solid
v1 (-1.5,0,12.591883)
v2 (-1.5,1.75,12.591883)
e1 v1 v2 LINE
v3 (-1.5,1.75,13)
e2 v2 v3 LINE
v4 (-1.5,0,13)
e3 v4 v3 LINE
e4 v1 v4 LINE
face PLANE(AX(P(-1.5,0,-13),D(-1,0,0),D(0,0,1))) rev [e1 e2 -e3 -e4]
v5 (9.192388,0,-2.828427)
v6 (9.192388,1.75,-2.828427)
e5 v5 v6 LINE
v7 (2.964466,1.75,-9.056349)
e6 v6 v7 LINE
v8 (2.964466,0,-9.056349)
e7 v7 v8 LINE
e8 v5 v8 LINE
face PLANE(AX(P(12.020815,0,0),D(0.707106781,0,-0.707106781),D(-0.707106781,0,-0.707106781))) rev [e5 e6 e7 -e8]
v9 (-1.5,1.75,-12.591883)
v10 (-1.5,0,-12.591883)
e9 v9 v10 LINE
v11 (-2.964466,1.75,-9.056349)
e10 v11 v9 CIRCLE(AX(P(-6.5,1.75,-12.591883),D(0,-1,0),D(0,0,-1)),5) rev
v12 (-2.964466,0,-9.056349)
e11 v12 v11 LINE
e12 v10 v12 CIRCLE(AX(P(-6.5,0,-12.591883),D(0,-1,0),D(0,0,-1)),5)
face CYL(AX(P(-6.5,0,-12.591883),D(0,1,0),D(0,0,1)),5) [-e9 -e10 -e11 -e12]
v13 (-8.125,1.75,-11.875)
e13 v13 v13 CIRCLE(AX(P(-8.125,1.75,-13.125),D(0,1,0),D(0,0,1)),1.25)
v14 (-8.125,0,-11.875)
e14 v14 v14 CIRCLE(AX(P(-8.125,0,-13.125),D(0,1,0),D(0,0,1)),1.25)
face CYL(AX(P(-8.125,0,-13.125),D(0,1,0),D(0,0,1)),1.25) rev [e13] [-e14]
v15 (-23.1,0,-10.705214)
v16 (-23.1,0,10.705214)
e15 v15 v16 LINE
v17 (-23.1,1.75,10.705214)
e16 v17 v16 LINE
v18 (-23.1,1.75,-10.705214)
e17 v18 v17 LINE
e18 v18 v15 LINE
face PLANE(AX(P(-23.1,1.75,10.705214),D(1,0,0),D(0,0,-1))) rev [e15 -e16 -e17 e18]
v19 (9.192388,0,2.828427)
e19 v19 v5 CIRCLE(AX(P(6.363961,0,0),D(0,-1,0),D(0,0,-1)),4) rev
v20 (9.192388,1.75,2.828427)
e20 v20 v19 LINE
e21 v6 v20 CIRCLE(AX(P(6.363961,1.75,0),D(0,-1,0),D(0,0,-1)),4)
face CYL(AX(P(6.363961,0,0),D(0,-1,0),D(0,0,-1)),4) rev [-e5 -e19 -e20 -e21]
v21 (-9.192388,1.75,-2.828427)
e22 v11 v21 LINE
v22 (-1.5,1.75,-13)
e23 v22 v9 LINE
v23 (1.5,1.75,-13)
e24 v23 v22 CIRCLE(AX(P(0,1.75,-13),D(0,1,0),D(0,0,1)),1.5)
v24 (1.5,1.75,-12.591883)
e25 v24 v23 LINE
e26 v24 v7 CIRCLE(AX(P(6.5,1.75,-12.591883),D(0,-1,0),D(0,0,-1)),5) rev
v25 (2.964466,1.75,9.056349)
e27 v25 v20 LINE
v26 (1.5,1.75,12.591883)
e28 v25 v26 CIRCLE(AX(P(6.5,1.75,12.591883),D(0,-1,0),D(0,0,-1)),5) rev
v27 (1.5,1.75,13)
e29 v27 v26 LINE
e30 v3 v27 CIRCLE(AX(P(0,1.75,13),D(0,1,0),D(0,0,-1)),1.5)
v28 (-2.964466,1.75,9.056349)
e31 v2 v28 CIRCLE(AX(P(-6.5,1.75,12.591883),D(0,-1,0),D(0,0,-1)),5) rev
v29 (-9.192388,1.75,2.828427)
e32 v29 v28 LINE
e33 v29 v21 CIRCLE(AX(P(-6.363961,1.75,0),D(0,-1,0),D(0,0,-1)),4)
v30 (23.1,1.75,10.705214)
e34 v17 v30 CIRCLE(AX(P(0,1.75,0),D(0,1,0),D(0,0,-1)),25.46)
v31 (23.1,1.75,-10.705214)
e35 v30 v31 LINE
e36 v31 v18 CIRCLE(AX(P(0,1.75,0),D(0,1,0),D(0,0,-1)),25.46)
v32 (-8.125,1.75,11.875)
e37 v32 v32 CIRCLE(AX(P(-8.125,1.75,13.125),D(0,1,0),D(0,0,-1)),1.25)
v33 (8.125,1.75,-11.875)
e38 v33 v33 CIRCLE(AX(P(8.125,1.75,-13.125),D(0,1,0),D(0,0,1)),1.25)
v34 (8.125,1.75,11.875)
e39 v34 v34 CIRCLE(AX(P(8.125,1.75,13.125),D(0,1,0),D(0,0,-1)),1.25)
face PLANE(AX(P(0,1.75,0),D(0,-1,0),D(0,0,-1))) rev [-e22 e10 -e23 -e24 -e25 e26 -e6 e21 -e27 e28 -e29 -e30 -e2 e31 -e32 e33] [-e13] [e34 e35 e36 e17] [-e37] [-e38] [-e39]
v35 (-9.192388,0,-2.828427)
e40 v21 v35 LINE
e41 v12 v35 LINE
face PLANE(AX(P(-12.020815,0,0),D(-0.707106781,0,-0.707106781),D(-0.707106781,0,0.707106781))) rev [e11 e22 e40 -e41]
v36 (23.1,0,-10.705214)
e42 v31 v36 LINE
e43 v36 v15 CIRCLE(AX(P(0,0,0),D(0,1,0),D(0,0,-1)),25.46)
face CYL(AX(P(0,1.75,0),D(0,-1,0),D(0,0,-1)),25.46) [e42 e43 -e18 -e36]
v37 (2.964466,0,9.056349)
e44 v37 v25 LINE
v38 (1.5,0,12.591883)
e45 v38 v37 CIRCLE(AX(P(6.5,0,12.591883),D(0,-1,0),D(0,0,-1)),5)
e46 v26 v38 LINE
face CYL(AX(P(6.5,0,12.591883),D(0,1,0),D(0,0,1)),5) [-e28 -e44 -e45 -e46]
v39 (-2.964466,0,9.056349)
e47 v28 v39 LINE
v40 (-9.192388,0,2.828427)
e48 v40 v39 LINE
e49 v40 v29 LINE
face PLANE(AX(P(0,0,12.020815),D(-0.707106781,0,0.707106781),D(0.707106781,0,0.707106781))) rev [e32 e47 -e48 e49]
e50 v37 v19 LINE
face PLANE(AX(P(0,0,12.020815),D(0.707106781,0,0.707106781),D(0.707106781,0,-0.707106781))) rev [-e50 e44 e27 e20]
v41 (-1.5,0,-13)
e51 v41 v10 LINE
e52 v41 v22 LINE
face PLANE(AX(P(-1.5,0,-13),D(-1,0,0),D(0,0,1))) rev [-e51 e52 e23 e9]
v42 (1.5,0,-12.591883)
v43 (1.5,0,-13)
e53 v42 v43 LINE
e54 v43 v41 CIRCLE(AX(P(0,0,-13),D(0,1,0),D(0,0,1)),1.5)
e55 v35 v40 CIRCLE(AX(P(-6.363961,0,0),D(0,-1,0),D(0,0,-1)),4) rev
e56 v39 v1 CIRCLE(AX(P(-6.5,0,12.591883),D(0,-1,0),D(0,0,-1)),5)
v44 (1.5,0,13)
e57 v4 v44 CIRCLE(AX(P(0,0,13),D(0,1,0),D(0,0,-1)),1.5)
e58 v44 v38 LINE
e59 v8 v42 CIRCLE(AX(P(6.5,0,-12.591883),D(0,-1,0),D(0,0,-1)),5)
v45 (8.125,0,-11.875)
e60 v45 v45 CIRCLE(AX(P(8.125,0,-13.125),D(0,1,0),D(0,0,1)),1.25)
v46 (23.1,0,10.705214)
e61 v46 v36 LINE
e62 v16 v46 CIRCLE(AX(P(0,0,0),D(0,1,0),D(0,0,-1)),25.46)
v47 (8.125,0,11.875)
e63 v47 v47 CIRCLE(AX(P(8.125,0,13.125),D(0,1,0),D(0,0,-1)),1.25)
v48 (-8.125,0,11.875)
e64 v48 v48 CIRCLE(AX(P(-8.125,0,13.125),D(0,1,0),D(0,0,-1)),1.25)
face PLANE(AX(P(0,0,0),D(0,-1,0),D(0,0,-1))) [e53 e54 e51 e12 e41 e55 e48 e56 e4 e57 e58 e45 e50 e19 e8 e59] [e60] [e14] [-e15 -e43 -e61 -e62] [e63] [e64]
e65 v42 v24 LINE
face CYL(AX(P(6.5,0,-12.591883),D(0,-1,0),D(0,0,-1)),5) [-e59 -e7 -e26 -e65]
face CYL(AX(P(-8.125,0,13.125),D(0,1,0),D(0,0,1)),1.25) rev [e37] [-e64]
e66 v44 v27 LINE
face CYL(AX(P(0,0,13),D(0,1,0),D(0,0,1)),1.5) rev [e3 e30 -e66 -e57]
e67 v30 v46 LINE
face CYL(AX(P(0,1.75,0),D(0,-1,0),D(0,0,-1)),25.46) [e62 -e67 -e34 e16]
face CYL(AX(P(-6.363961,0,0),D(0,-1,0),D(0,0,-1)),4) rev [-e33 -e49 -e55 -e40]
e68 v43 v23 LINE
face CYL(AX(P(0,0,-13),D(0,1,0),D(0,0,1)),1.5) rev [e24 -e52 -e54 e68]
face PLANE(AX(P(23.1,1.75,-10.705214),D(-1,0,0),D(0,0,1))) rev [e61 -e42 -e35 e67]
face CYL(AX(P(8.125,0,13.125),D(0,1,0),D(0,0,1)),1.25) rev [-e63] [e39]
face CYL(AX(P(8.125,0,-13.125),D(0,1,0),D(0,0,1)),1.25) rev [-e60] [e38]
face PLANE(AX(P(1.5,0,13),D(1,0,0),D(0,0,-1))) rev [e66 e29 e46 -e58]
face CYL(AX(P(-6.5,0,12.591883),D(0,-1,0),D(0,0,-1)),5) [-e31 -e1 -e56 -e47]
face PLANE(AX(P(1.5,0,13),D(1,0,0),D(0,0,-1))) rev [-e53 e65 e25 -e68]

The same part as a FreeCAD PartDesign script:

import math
import FreeCAD as App
import Part
import Sketcher

V = App.Vector
Q = App.Units.Quantity


def edges_at(feature, points):
    """Names of the edges that pass closest to the given points."""
    edges = feature.Shape.Edges
    near = lambda p: min(range(len(edges)), key=lambda i: edges[i].distToShape(Part.Vertex(*p))[0])
    return sorted({f"Edge{near(p) + 1}" for p in points})

doc = App.newDocument("Part")
body = doc.addObject("PartDesign::Body", "Body")

# Sketch on XZ plane
sketch1 = body.newObject("Sketcher::SketchObject", "Sketch")
sketch1.AttachmentSupport = (doc.getObject("XZ_Plane"), [""])
sketch1.MapMode = "FlatFace"
sketch1.addGeometry([
    Part.LineSegment(V(-23, -11, 0), V(-23, 11, 0)),
    Part.ArcOfCircle(Part.Circle(V(0, 0, 0), V(0, 0, 1), 25), math.radians(25), math.radians(155)),
    Part.LineSegment(V(23, 11, 0), V(23, -11, 0)),
    Part.ArcOfCircle(Part.Circle(V(0, 0, 0), V(0, 0, 1), 25), math.radians(-155), math.radians(-25)),
], False)
sketch1.addConstraint([
    Sketcher.Constraint("Coincident", 0, 2, 1, 2),
    Sketcher.Constraint("Coincident", 1, 1, 2, 1),
    Sketcher.Constraint("Coincident", 2, 2, 3, 2),
    Sketcher.Constraint("Coincident", 3, 1, 0, 1),
    Sketcher.Constraint("Vertical", 0),
    Sketcher.Constraint("Vertical", 2),
    Sketcher.Constraint("Coincident", 1, 3, -1, 1),
    Sketcher.Constraint("Coincident", 3, 3, -1, 1),
    Sketcher.Constraint("Equal", 1, 3),
    Sketcher.Constraint("Horizontal", 0, 2, 1, 1),
    Sketcher.Constraint("Radius", 1, Q("25.46 mm")),
    Sketcher.Constraint("DistanceX", 0, 2, -1, 1, Q("23.1 mm")),
])
pad1 = body.newObject("PartDesign::Pad", "Pad")
pad1.Profile = sketch1
pad1.Length = 1.75
pad1.Reversed = True

# Sketch on XZ plane
sketch2 = body.newObject("Sketcher::SketchObject", "Sketch001")
sketch2.AttachmentSupport = (doc.getObject("XZ_Plane"), [""])
sketch2.MapMode = "FlatFace"
sketch2.AttachmentOffset = App.Placement(V(0, 0, -1.75), App.Rotation())
sketch2.addGeometry([
    Part.LineSegment(V(-12, 0, 0), V(0, 12, 0)),
    Part.LineSegment(V(0, 12, 0), V(12, 0, 0)),
    Part.LineSegment(V(12, 0, 0), V(0, -12, 0)),
    Part.LineSegment(V(0, -12, 0), V(-12, 0, 0)),
], False)
sketch2.addConstraint([
    Sketcher.Constraint("Coincident", 0, 2, 1, 1),
    Sketcher.Constraint("Coincident", 1, 2, 2, 1),
    Sketcher.Constraint("Coincident", 2, 2, 3, 1),
    Sketcher.Constraint("Coincident", 3, 2, 0, 1),
    Sketcher.Constraint("Symmetric", 0, 2, 2, 2, -1, 1),
    Sketcher.Constraint("Symmetric", 1, 2, 3, 2, -1, 1),
    Sketcher.Constraint("PointOnObject", 0, 2, -2),
    Sketcher.Constraint("PointOnObject", 1, 2, -1),
    Sketcher.Constraint("Perpendicular", 0, 1),
    Sketcher.Constraint("Distance", 0, Q("17 mm")),
])
pocket1 = body.newObject("PartDesign::Pocket", "Pocket")
pocket1.Profile = sketch2
pocket1.Type = "ThroughAll"
pocket1.Reversed = True

# Sketch on XZ plane
sketch3 = body.newObject("Sketcher::SketchObject", "Sketch002")
sketch3.AttachmentSupport = (doc.getObject("XZ_Plane"), [""])
sketch3.MapMode = "FlatFace"
sketch3.AttachmentOffset = App.Placement(V(0, 0, -1.75), App.Rotation())
sketch3.addGeometry([
    Part.LineSegment(V(-1.5, -13, 0), V(-1.5, 13, 0)),
    Part.ArcOfCircle(Part.Circle(V(0, 13, 0), V(0, 0, 1), 1.5), math.radians(0), math.radians(180)),
    Part.LineSegment(V(1.5, 13, 0), V(1.5, -13, 0)),
    Part.ArcOfCircle(Part.Circle(V(0, -13, 0), V(0, 0, 1), 1.5), math.radians(180), math.radians(360)),
], False)
sketch3.addConstraint([
    Sketcher.Constraint("Tangent", 0, 2, 1, 2),
    Sketcher.Constraint("Tangent", 1, 1, 2, 1),
    Sketcher.Constraint("Tangent", 2, 2, 3, 2),
    Sketcher.Constraint("Tangent", 3, 1, 0, 1),
    Sketcher.Constraint("Vertical", 0),
    Sketcher.Constraint("Vertical", 2),
    Sketcher.Constraint("Symmetric", 1, 3, 3, 3, -1, 1),
    Sketcher.Constraint("Radius", 1, Q("1.5 mm")),
    Sketcher.Constraint("DistanceY", 0, 1, 0, 2, Q("26 mm")),
])
pocket2 = body.newObject("PartDesign::Pocket", "Pocket001")
pocket2.Profile = sketch3
pocket2.Length = 1.75
pocket2.Reversed = True
doc.recompute()

fillet = body.newObject("PartDesign::Fillet", "Fillet")
fillet.Base = (pocket2, edges_at(pocket2, [
    (1.5, 0.875, -10.521),
    (-1.5, 0.875, -10.521),
    (-1.5, 0.875, 10.521),
    (1.5, 0.875, 10.521),
]))
fillet.Radius = 5
doc.recompute()

fillet2 = body.newObject("PartDesign::Fillet", "Fillet001")
fillet2.Base = (fillet, edges_at(fillet, [(12.021, 0.875, 0), (-12.021, 0.875, 0)]))
fillet2.Radius = 4

# Sketch on XZ plane
sketch4 = body.newObject("Sketcher::SketchObject", "Sketch003")
sketch4.AttachmentSupport = (doc.getObject("XZ_Plane"), [""])
sketch4.MapMode = "FlatFace"
sketch4.AttachmentOffset = App.Placement(V(0, 0, -1.75), App.Rotation())
sketch4.addGeometry([
    Part.Circle(V(-8.1, -13.1, 0), V(0, 0, 1), 1.2),
    Part.Circle(V(8.1, -13.1, 0), V(0, 0, 1), 1.2),
], False)
sketch4.addConstraint([
    Sketcher.Constraint("Equal", 0, 1),
    Sketcher.Constraint("Symmetric", 0, 3, 1, 3, -2),
    Sketcher.Constraint("Diameter", 0, Q("2.5 mm")),
    Sketcher.Constraint("DistanceX", 0, 3, 1, 3, Q("16.25 mm")),
    Sketcher.Constraint("DistanceY", 0, 3, -1, 1, Q("13.125 mm")),
])
pocket3 = body.newObject("PartDesign::Pocket", "Pocket002")
pocket3.Profile = sketch4
pocket3.Type = "ThroughAll"
pocket3.Reversed = True
doc.recompute()

polarpattern = body.newObject("PartDesign::PolarPattern", "PolarPattern")
polarpattern.Originals = [pocket3]
polarpattern.Axis = (doc.getObject("Y_Axis"), [""])
polarpattern.Angle = 360
polarpattern.Occurrences = 2
body.Tip = polarpattern

doc.recompute()
